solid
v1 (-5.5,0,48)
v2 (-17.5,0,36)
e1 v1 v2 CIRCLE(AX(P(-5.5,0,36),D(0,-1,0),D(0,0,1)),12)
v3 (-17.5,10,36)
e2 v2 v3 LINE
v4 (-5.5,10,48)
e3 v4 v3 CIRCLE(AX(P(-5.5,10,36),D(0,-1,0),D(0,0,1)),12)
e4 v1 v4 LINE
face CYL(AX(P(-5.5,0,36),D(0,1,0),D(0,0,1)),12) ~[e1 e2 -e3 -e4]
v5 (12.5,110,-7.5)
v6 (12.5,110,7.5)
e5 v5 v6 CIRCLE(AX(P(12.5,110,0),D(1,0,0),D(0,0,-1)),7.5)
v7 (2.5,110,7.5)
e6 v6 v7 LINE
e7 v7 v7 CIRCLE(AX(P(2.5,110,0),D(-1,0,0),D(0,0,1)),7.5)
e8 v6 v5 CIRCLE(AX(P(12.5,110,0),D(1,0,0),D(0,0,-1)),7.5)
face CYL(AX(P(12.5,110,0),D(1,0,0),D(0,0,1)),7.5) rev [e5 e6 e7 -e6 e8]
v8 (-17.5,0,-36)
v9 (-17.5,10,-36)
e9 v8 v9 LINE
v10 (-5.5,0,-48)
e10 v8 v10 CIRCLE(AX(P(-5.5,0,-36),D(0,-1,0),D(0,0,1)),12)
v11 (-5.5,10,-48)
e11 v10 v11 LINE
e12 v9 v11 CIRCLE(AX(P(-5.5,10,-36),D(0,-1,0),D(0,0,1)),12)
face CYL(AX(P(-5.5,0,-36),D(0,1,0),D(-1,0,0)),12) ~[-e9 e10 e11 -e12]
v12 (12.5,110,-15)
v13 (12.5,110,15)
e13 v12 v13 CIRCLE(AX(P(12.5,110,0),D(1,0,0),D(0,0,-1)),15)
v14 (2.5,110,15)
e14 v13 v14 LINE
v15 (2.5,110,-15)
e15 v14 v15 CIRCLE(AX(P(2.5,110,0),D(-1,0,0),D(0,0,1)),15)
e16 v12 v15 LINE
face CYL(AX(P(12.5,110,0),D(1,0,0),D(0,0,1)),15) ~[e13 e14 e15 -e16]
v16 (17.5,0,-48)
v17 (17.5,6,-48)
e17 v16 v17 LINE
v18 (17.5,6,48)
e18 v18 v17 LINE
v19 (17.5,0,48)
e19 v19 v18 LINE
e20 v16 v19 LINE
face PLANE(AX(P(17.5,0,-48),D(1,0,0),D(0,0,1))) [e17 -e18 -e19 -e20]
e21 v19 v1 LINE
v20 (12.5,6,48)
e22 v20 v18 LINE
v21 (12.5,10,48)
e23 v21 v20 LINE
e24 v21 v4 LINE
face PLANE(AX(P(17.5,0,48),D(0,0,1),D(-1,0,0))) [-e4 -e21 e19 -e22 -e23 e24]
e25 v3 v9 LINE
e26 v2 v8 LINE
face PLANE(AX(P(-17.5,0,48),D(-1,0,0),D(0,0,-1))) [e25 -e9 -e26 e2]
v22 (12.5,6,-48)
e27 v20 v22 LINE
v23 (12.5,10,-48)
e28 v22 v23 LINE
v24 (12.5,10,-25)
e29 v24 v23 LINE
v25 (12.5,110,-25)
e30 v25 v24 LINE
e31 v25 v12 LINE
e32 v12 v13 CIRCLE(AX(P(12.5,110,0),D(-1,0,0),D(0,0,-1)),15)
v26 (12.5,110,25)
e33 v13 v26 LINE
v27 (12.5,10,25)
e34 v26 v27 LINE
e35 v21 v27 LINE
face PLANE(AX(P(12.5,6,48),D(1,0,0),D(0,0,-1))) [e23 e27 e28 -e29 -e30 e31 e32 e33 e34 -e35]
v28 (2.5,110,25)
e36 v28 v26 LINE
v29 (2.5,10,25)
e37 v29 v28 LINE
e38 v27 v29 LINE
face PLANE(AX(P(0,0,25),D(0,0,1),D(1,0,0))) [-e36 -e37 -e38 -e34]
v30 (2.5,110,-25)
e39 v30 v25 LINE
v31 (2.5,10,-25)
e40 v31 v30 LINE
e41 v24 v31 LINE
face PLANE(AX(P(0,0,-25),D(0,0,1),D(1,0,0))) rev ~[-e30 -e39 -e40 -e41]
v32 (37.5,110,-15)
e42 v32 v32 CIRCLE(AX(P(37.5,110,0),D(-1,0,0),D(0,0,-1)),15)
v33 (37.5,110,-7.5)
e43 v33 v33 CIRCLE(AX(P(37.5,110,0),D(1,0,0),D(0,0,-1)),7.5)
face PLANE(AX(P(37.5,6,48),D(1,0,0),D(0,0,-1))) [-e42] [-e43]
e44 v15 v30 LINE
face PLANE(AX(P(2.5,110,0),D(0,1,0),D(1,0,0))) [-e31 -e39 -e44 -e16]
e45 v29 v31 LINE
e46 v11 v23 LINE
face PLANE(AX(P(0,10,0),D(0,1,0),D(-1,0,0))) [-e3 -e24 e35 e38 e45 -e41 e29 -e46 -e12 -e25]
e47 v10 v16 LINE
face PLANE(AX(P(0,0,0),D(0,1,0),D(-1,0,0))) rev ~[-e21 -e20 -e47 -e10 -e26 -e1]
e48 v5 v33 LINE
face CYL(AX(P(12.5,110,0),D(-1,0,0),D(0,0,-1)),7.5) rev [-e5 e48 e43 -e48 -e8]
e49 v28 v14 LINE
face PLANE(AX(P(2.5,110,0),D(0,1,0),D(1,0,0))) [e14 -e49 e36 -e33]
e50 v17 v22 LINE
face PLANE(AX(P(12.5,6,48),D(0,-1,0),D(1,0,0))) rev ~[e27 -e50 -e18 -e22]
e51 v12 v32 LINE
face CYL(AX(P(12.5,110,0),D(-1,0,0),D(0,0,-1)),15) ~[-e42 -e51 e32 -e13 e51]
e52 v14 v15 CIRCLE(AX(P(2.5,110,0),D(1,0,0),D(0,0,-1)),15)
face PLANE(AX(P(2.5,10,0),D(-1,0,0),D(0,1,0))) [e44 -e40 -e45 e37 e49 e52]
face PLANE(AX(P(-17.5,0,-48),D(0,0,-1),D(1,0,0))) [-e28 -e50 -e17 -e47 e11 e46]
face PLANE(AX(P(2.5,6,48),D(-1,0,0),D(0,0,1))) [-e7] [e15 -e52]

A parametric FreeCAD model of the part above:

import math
import FreeCAD as App
import Part
import Sketcher

V = App.Vector
Q = App.Units.Quantity


def edges_at(feature, points):
    """Names of the edges that pass closest to the given points."""
    edges = feature.Shape.Edges
    near = lambda p: min(range(len(edges)), key=lambda i: edges[i].distToShape(Part.Vertex(*p))[0])
    return sorted({f"Edge{near(p) + 1}" for p in points})


def add_polygon(sketch, points):
    """Adds a closed chain of lines whose ends are joined by coincident constraints."""
    first, n = sketch.GeometryCount, len(points)
    for a, b in zip(points, points[1:] + points[:1]):
        sketch.addGeometry(Part.LineSegment(App.Vector(*a, 0), App.Vector(*b, 0)), False)
    for i in range(n):
        sketch.addConstraint(Sketcher.Constraint("Coincident", first + i, 2, first + (i + 1) % n, 1))

doc = App.newDocument("Part")
params = doc.addObject("Spreadsheet::Sheet", "Params")
for row, (alias, value) in enumerate([
    ("sketch1_width", "35 mm"),
    ("sketch1_height", "96 mm"),
    ("pad1_length", "10 mm"),
    ("fillet_radius", "12 mm"),
    ("sketch2_width", "5 mm"),
    ("sketch2_height", "4 mm"),
    ("sketch3_width", "10 mm"),
    ("sketch3_height", "100 mm"),
    ("pad2_length", "50 mm"),
    ("sketch4_radius", "15 mm"),
    ("pad3_length", "50 mm"),
    ("sketch5_diameter", "30 mm"),
    ("pocket2_length", "50 mm"),
    ("sketch6_diameter", "30 mm"),
    ("sketch6_diameter2", "15 mm"),
    ("pad4_length", "25 mm"),
    ("sketch7_diameter", "30 mm"),
    ("sketch7_diameter2", "15 mm"),
    ("pad5_length", "10 mm"),
], start=1):
    params.set(f"A{row}", alias)
    params.set(f"B{row}", "=" + value)
    params.setAlias(f"B{row}", alias)

body = doc.addObject("PartDesign::Body", "Body")
body.AllowCompound = True

# Sketch on XZ plane
sketch1 = body.newObject("Sketcher::SketchObject", "Sketch")
sketch1.AttachmentSupport = (doc.getObject("XZ_Plane"), [""])
sketch1.MapMode = "FlatFace"
add_polygon(sketch1, [(-18, 48), (18, 48), (18, -48), (-18, -48)])  # lines 0-3
sketch1.addConstraint([
    Sketcher.Constraint("Horizontal", 0),
    Sketcher.Constraint("Vertical", 1),
    Sketcher.Constraint("Horizontal", 2),
    Sketcher.Constraint("Vertical", 3),
    Sketcher.Constraint("Symmetric", 0, 2, 2, 2, -1, 1),
    Sketcher.Constraint("DistanceX", 0, 1, 0, 2, Q("35 mm")),
    Sketcher.Constraint("DistanceY", 1, 2, 1, 1, Q("96 mm")),
])
sketch1.setExpression("Constraints[9]", "Params.sketch1_width")
sketch1.setExpression("Constraints[10]", "Params.sketch1_height")
pad1 = body.newObject("PartDesign::Pad", "Pad")
pad1.Profile = sketch1
pad1.setExpression("Length", "Params.pad1_length")
pad1.Reversed = True
doc.recompute()

fillet = body.newObject("PartDesign::Fillet", "Fillet")
fillet.Base = (pad1, edges_at(pad1, [(-17.5, 5, 48), (-17.5, 5, -48)]))
fillet.setExpression("Radius", "Params.fillet_radius")

# Sketch on XY plane
sketch2 = body.newObject("Sketcher::SketchObject", "Sketch001")
sketch2.AttachmentSupport = (doc.getObject("XY_Plane"), [""])
sketch2.MapMode = "FlatFace"
sketch2.AttachmentOffset = App.Placement(V(0, 0, 48), App.Rotation())
add_polygon(sketch2, [(17.5, 6), (17.5, 10), (12.5, 10), (12.5, 6)])  # lines 0-3
sketch2.addConstraint([
    Sketcher.Constraint("Vertical", 0),
    Sketcher.Constraint("Horizontal", 1),
    Sketcher.Constraint("Vertical", 2),
    Sketcher.Constraint("Horizontal", 3),
    Sketcher.Constraint("DistanceX", 1, 2, 1, 1, Q("5 mm")),
    Sketcher.Constraint("DistanceY", -1, 1, 2, 2, Q("6 mm")),
    Sketcher.Constraint("DistanceY", 0, 1, 0, 2, Q("4 mm")),
    Sketcher.Constraint("DistanceX", -1, 1, 0, 2, Q("17.5 mm")),
])
sketch2.setExpression("Constraints[8]", "Params.sketch2_width")
sketch2.setExpression("Constraints[10]", "Params.sketch2_height")
pocket1 = body.newObject("PartDesign::Pocket", "Pocket")
pocket1.Profile = sketch2
pocket1.Type = "ThroughAll"

# Sketch on XY plane
sketch3 = body.newObject("Sketcher::SketchObject", "Sketch002")
sketch3.AttachmentSupport = (doc.getObject("XY_Plane"), [""])
sketch3.MapMode = "FlatFace"
add_polygon(sketch3, [(2, 10), (12, 10), (12, 110), (2, 110)])  # lines 0-3
sketch3.addConstraint([
    Sketcher.Constraint("Horizontal", 0),
    Sketcher.Constraint("Vertical", 1),
    Sketcher.Constraint("Horizontal", 2),
    Sketcher.Constraint("Vertical", 3),
    Sketcher.Constraint("DistanceX", 0, 1, 0, 2, Q("10 mm")),
    Sketcher.Constraint("DistanceY", 1, 1, 1, 2, Q("100 mm")),
    Sketcher.Constraint("DistanceY", -1, 1, 0, 2, Q("10 mm")),
    Sketcher.Constraint("DistanceX", -1, 1, 0, 2, Q("12.5 mm")),
])
sketch3.setExpression("Constraints[8]", "Params.sketch3_width")
sketch3.setExpression("Constraints[9]", "Params.sketch3_height")
pad2 = body.newObject("PartDesign::Pad", "Pad001")
pad2.Profile = sketch3
pad2.setExpression("Length", "Params.pad2_length")
pad2.Midplane = True

# Sketch on YZ plane
sketch4 = body.newObject("Sketcher::SketchObject", "Sketch003")
sketch4.AttachmentSupport = (doc.getObject("YZ_Plane"), [""])
sketch4.MapMode = "FlatFace"
sketch4.AttachmentOffset = App.Placement(V(0, 0, 12.5), App.Rotation())
sketch4.addGeometry([
    Part.ArcOfCircle(Part.Circle(V(110, 0, 0), V(0, 0, 1), 15), math.radians(-90), math.radians(90)),
    Part.LineSegment(V(110, 15, 0), V(110, -15, 0)),
], False)
sketch4.addConstraint([
    Sketcher.Constraint("Coincident", 0, 1, 1, 2),
    Sketcher.Constraint("Coincident", 1, 1, 0, 2),
    Sketcher.Constraint("Vertical", 1),
    Sketcher.Constraint("PointOnObject", 0, 3, -1),
    Sketcher.Constraint("Radius", 0, Q("15 mm")),
    Sketcher.Constraint("DistanceX", -1, 1, 0, 3, Q("110 mm")),
    Sketcher.Constraint("DistanceX", -1, 1, 0, 1, Q("110 mm")),
])
sketch4.setExpression("Constraints[4]", "Params.sketch4_radius")
pad3 = body.newObject("PartDesign::Pad", "Pad002")
pad3.Profile = sketch4
pad3.setExpression("Length", "Params.pad3_length")
pad3.Reversed = True

# Sketch on YZ plane
sketch5 = body.newObject("Sketcher::SketchObject", "Sketch004")
sketch5.AttachmentSupport = (doc.getObject("YZ_Plane"), [""])
sketch5.MapMode = "FlatFace"
sketch5.AttachmentOffset = App.Placement(V(0, 0, 12.5), App.Rotation())
sketch5.addGeometry(Part.Circle(V(110, 0, 0), V(0, 0, 1), 15), False)
sketch5.addConstraint([
    Sketcher.Constraint("PointOnObject", 0, 3, -1),
    Sketcher.Constraint("Diameter", 0, Q("30 mm")),
    Sketcher.Constraint("DistanceX", -1, 1, 0, 3, Q("110 mm")),
])
sketch5.setExpression("Constraints[1]", "Params.sketch5_diameter")
pocket2 = body.newObject("PartDesign::Pocket", "Pocket001")
pocket2.Profile = sketch5
pocket2.setExpression("Length", "Params.pocket2_length")

# Sketch on YZ plane
sketch6 = body.newObject("Sketcher::SketchObject", "Sketch005")
sketch6.AttachmentSupport = (doc.getObject("YZ_Plane"), [""])
sketch6.MapMode = "FlatFace"
sketch6.AttachmentOffset = App.Placement(V(0, 0, 12.5), App.Rotation())
sketch6.addGeometry([
    Part.Circle(V(110, 0, 0), V(0, 0, 1), 15),
    Part.Circle(V(110, 0, 0), V(0, 0, 1), 8),
], False)
sketch6.addConstraint([
    Sketcher.Constraint("Coincident", 1, 3, 0, 3),
    Sketcher.Constraint("PointOnObject", 0, 3, -1),
    Sketcher.Constraint("Diameter", 0, Q("30 mm")),
    Sketcher.Constraint("Diameter", 1, Q("15 mm")),
    Sketcher.Constraint("DistanceX", -1, 1, 0, 3, Q("110 mm")),
])
sketch6.setExpression("Constraints[2]", "Params.sketch6_diameter")
sketch6.setExpression("Constraints[3]", "Params.sketch6_diameter2")
pad4 = body.newObject("PartDesign::Pad", "Pad003")
pad4.Profile = sketch6
pad4.setExpression("Length", "Params.pad4_length")

# Sketch on YZ plane
sketch7 = body.newObject("Sketcher::SketchObject", "Sketch006")
sketch7.AttachmentSupport = (doc.getObject("YZ_Plane"), [""])
sketch7.MapMode = "FlatFace"
sketch7.AttachmentOffset = App.Placement(V(0, 0, 12.5), App.Rotation())
sketch7.addGeometry([
    Part.Circle(V(110, 0, 0), V(0, 0, 1), 15),
    Part.Circle(V(110, 0, 0), V(0, 0, 1), 8),
], False)
sketch7.addConstraint([
    Sketcher.Constraint("Coincident", 1, 3, 0, 3),
    Sketcher.Constraint("PointOnObject", 0, 3, -1),
    Sketcher.Constraint("Diameter", 0, Q("30 mm")),
    Sketcher.Constraint("Diameter", 1, Q("15 mm")),
    Sketcher.Constraint("DistanceX", -1, 1, 0, 3, Q("110 mm")),
])
sketch7.setExpression("Constraints[2]", "Params.sketch7_diameter")
sketch7.setExpression("Constraints[3]", "Params.sketch7_diameter2")
pad5 = body.newObject("PartDesign::Pad", "Pad004")
pad5.Profile = sketch7
pad5.setExpression("Length", "Params.pad5_length")
pad5.Reversed = True

doc.recompute()
